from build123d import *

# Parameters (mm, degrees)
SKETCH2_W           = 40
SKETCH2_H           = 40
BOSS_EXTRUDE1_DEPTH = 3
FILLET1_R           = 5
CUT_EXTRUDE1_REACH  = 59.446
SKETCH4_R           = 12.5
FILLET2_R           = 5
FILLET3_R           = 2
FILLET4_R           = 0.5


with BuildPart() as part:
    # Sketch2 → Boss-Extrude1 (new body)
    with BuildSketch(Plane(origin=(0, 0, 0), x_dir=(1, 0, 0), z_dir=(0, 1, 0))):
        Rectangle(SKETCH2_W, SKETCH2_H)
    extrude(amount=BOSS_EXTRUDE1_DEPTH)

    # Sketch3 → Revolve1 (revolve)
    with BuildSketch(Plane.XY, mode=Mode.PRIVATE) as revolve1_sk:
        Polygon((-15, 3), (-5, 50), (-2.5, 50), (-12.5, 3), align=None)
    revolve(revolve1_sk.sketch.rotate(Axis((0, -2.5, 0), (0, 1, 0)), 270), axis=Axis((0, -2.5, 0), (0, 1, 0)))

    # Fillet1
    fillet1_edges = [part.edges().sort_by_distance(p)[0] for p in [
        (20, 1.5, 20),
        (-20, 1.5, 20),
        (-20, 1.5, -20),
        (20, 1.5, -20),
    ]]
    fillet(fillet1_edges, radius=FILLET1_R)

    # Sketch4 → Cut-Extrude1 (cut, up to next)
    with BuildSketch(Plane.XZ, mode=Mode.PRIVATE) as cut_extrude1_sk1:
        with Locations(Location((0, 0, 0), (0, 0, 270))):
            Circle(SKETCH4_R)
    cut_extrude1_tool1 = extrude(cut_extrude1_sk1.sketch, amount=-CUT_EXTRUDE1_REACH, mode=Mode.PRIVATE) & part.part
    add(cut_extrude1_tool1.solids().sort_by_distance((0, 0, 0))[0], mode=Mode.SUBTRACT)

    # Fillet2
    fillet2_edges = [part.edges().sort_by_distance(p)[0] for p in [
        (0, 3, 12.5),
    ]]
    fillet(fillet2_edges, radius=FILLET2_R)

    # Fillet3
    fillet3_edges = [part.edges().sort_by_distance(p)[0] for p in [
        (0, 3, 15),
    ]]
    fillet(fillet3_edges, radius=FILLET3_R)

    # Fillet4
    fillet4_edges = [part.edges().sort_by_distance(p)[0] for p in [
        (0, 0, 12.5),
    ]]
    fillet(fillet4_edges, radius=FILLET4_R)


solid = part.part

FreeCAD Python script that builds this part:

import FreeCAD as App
import Part
import Sketcher

V = App.Vector


def edges_at(feature, points):
    """Names of the edges that pass closest to the given points."""
    edges = feature.Shape.Edges
    near = lambda p: min(range(len(edges)), key=lambda i: edges[i].distToShape(Part.Vertex(*p))[0])
    return sorted({f"Edge{near(p) + 1}" for p in points})

doc = App.newDocument("Part")
body = doc.addObject("PartDesign::Body", "Body")

# Sketch on XZ plane
sketch1 = doc.addObject("Sketcher::SketchObject", "Sketch")
body.addObject(sketch1)
sketch1.AttachmentSupport = (doc.XZ_Plane, [""])
sketch1.MapMode = "FlatFace"
sketch1.addGeometry([
    Part.LineSegment(V(-20, -20, 0), V(-20, 20, 0)),
    Part.LineSegment(V(-20, 20, 0), V(20, 20, 0)),
    Part.LineSegment(V(20, 20, 0), V(20, -20, 0)),
    Part.LineSegment(V(20, -20, 0), V(-20, -20, 0)),
], False)
sketch1.addConstraint([
    Sketcher.Constraint("Coincident", 0, 2, 1, 1),
    Sketcher.Constraint("Coincident", 1, 2, 2, 1),
    Sketcher.Constraint("Coincident", 2, 2, 3, 1),
    Sketcher.Constraint("Coincident", 3, 2, 0, 1),
    Sketcher.Constraint("Vertical", 0),
    Sketcher.Constraint("Horizontal", 1),
    Sketcher.Constraint("Vertical", 2),
    Sketcher.Constraint("Horizontal", 3),
    Sketcher.Constraint("Symmetric", 0, 2, 2, 2, -1, 1),
    Sketcher.Constraint("Equal", 3, 0),
    Sketcher.Constraint("DistanceX", 1, 1, 1, 2, 40.0),
])
pad1 = doc.addObject("PartDesign::Pad", "Pad")
body.addObject(pad1)
pad1.Profile = sketch1
pad1.Length = 3
pad1.Reversed = True

# Sketch on XY plane
sketch2 = doc.addObject("Sketcher::SketchObject", "Sketch001")
body.addObject(sketch2)
sketch2.AttachmentSupport = (doc.XY_Plane, [""])
sketch2.MapMode = "FlatFace"
sketch2.addGeometry([
    Part.LineSegment(V(-5, 50, 0), V(-15, 3, 0)),
    Part.LineSegment(V(-15, 3, 0), V(-12.5, 3, 0)),
    Part.LineSegment(V(-12.5, 3, 0), V(-2.5, 50, 0)),
    Part.LineSegment(V(-2.5, 50, 0), V(-5, 50, 0)),
], False)
sketch2.addConstraint([
    Sketcher.Constraint("Coincident", 0, 2, 1, 1),
    Sketcher.Constraint("Coincident", 1, 2, 2, 1),
    Sketcher.Constraint("Coincident", 2, 2, 3, 1),
    Sketcher.Constraint("Coincident", 3, 2, 0, 1),
    Sketcher.Constraint("Horizontal", 1),
    Sketcher.Constraint("Horizontal", 3),
    Sketcher.Constraint("Parallel", 0, 2),
    Sketcher.Constraint("DistanceX", 1, 1, 1, 2, 2.5),
    Sketcher.Constraint("DistanceX", 0, 2, -1, 1, 15.0),
    Sketcher.Constraint("DistanceY", -1, 1, 0, 2, 3.0),
    Sketcher.Constraint("DistanceY", -1, 1, 2, 2, 50.0),
    Sketcher.Constraint("DistanceX", 3, 2, -1, 1, 5.0),
])
revolution = doc.addObject("PartDesign::Revolution", "Revolution")
body.addObject(revolution)
revolution.Profile = sketch2
revolution.ReferenceAxis = (sketch2, ["V_Axis"])
revolution.Angle = 360
doc.recompute()

fillet = doc.addObject("PartDesign::Fillet", "Fillet")
body.addObject(fillet)
fillet.Base = (revolution, edges_at(revolution, [
    (20, 1.5, 20),
    (-20, 1.5, 20),
    (-20, 1.5, -20),
    (20, 1.5, -20),
]))
fillet.Radius = 5

# Sketch on XZ plane
sketch3 = doc.addObject("Sketcher::SketchObject", "Sketch002")
body.addObject(sketch3)
sketch3.AttachmentSupport = (doc.XZ_Plane, [""])
sketch3.MapMode = "FlatFace"
sketch3.addGeometry(Part.Circle(V(0, 0, 0), V(0, 0, 1), 12), False)
sketch3.addConstraint([
    Sketcher.Constraint("Coincident", 0, 3, -1, 1),
    Sketcher.Constraint("Diameter", 0, 25.0),
])
pocket1 = doc.addObject("PartDesign::Pocket", "Pocket")
body.addObject(pocket1)
pocket1.Profile = sketch3
pocket1.Type = "UpToFirst"
doc.recompute()

fillet2 = doc.addObject("PartDesign::Fillet", "Fillet001")
body.addObject(fillet2)
fillet2.Base = (pocket1, edges_at(pocket1, [(0, 3, 12.5)]))
fillet2.Radius = 5
doc.recompute()

fillet3 = doc.addObject("PartDesign::Fillet", "Fillet002")
body.addObject(fillet3)
fillet3.Base = (fillet2, edges_at(fillet2, [(0, 3, 15)]))
fillet3.Radius = 2
doc.recompute()

fillet4 = doc.addObject("PartDesign::Fillet", "Fillet003")
body.addObject(fillet4)
fillet4.Base = (fillet3, edges_at(fillet3, [(0, 0, 12.5)]))
fillet4.Radius = 0.5

doc.recompute()
